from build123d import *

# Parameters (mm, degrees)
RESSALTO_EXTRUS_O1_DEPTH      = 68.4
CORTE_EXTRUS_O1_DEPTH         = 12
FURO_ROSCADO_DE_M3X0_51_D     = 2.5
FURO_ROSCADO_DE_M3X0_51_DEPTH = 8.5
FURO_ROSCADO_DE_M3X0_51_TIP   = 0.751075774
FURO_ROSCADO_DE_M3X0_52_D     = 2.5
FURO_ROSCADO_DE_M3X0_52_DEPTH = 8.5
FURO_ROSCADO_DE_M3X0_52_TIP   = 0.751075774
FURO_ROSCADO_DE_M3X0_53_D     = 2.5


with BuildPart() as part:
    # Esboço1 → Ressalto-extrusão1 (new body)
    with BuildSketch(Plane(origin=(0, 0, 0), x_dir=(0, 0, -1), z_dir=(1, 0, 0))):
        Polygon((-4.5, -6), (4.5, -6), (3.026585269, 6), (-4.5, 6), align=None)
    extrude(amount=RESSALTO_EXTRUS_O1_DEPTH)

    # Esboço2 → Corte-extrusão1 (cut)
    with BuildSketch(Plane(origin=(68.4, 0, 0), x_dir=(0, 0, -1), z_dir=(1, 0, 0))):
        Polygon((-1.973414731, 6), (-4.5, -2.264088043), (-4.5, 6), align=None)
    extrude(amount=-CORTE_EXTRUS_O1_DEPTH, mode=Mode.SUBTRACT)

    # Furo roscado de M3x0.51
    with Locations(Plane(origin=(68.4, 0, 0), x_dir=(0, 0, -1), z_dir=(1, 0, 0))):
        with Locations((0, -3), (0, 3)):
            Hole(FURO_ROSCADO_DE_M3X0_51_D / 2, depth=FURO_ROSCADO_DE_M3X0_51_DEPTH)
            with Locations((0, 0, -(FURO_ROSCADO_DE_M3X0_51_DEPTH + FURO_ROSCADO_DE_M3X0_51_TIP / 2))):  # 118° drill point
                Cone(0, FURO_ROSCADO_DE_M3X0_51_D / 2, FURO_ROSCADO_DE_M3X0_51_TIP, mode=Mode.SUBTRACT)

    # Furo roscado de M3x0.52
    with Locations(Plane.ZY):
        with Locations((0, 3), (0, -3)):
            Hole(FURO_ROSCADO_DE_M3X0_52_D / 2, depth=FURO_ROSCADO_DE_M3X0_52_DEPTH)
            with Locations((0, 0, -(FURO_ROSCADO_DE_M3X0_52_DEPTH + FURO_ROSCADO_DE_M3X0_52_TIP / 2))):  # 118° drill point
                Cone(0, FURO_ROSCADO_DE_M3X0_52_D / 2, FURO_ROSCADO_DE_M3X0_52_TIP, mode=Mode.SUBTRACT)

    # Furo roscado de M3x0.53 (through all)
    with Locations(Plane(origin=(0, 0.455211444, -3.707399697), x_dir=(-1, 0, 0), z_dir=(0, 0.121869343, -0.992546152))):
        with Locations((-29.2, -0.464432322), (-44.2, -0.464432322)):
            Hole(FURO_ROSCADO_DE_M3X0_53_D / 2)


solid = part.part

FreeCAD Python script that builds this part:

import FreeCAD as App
import Part
import Sketcher
from FreeCAD import Vector
Q = App.Units.Quantity

doc = App.newDocument("Part")
body = doc.addObject("PartDesign::Body", "Body")

# Sketch on YZ plane
sketch1 = body.newObject("Sketcher::SketchObject", "Sketch")
sketch1.AttachmentSupport = (doc.getObject("YZ_Plane"), [""])
sketch1.MapMode = "FlatFace"
sketch1.addGeometry(Part.LineSegment(Vector(-6, 4, 0), Vector(-6, -4, 0)), False)
sketch1.addGeometry(Part.LineSegment(Vector(-6, -4, 0), Vector(6, -3, 0)), False)
sketch1.addGeometry(Part.LineSegment(Vector(6, -3, 0), Vector(6, 4, 0)), False)
sketch1.addGeometry(Part.LineSegment(Vector(6, 4, 0), Vector(-6, 4, 0)), False)
sketch1.addConstraint(Sketcher.Constraint("Coincident", 0, 2, 1, 1))
sketch1.addConstraint(Sketcher.Constraint("Coincident", 1, 2, 2, 1))
sketch1.addConstraint(Sketcher.Constraint("Coincident", 2, 2, 3, 1))
sketch1.addConstraint(Sketcher.Constraint("Coincident", 3, 2, 0, 1))
sketch1.addConstraint(Sketcher.Constraint("Vertical", 0))
sketch1.addConstraint(Sketcher.Constraint("Vertical", 2))
sketch1.addConstraint(Sketcher.Constraint("Horizontal", 3))
sketch1.addConstraint(Sketcher.Constraint("Symmetric", 0, 2, 2, 2, -1, 1))
sketch1.addConstraint(Sketcher.Constraint("DistanceX", 3, 2, 3, 1, 12.0))
sketch1.addConstraint(Sketcher.Constraint("DistanceY", 0, 2, 0, 1, 9.0))
sketch1.addConstraint(Sketcher.Constraint("Angle", 1, Q("7 deg")))
pad1 = body.newObject("PartDesign::Pad", "Pad")
pad1.Profile = sketch1
pad1.Length = 68.4

# Sketch on YZ plane
sketch2 = body.newObject("Sketcher::SketchObject", "Sketch001")
sketch2.AttachmentSupport = (doc.getObject("YZ_Plane"), [""])
sketch2.MapMode = "FlatFace"
sketch2.AttachmentOffset = App.Placement(Vector(0, 0, 68.4), App.Rotation())
sketch2.addGeometry(Part.LineSegment(Vector(-2.3, 4.5, 0), Vector(6, 2, 0)), False)
sketch2.addGeometry(Part.LineSegment(Vector(6, 2, 0), Vector(6, 4.5, 0)), False)
sketch2.addGeometry(Part.LineSegment(Vector(6, 4.5, 0), Vector(-2.3, 4.5, 0)), False)
sketch2.addConstraint(Sketcher.Constraint("Coincident", 0, 2, 1, 1))
sketch2.addConstraint(Sketcher.Constraint("Coincident", 1, 2, 2, 1))
sketch2.addConstraint(Sketcher.Constraint("Coincident", 2, 2, 0, 1))
sketch2.addConstraint(Sketcher.Constraint("Vertical", 1))
sketch2.addConstraint(Sketcher.Constraint("Horizontal", 2))
sketch2.addConstraint(Sketcher.Constraint("Angle", 0, Q("-17 deg")))
sketch2.addConstraint(Sketcher.Constraint("DistanceX", -1, 1, 0, 2, 6.0))
sketch2.addConstraint(Sketcher.Constraint("DistanceY", -1, 1, 1, 2, 4.5))
sketch2.addConstraint(Sketcher.Constraint("DistanceX", 2, 2, 2, 1, 8.264088))
pocket1 = body.newObject("PartDesign::Pocket", "Pocket")
pocket1.Profile = sketch2
pocket1.Length = 12

# Sketch on YZ plane
sketch3 = body.newObject("Sketcher::SketchObject", "Sketch002")
sketch3.AttachmentSupport = (doc.getObject("YZ_Plane"), [""])
sketch3.MapMode = "FlatFace"
sketch3.AttachmentOffset = App.Placement(Vector(0, 0, 68.4), App.Rotation())
sketch3.addGeometry(Part.Circle(Vector(-3, 0, 0), Vector(0, 0, 1), 1.2), False)
sketch3.addGeometry(Part.Circle(Vector(3, 0, 0), Vector(0, 0, 1), 1.2), False)
sketch3.addConstraint(Sketcher.Constraint("Equal", 0, 1))
sketch3.addConstraint(Sketcher.Constraint("Symmetric", 0, 3, 1, 3, -1, 1))
sketch3.addConstraint(Sketcher.Constraint("PointOnObject", 0, 3, -1))
sketch3.addConstraint(Sketcher.Constraint("Diameter", 0, 2.5))
sketch3.addConstraint(Sketcher.Constraint("DistanceX", 0, 3, -1, 1, 3.0))
doc.recompute()
hole = body.newObject("PartDesign::Hole", "Hole")
hole.Profile = sketch3
hole.ThreadType = "None"
hole.Diameter = 2.5
hole.DepthType = "Dimension"
hole.Depth = 8.5
hole.DrillPoint = "Angled"
hole.DrillPointAngle = 118

# Sketch on YZ plane
sketch4 = body.newObject("Sketcher::SketchObject", "Sketch003")
sketch4.AttachmentSupport = (doc.getObject("YZ_Plane"), [""])
sketch4.MapMode = "FlatFace"
sketch4.addGeometry(Part.Circle(Vector(3, 0, 0), Vector(0, 0, 1), 1.2), False)
sketch4.addGeometry(Part.Circle(Vector(-3, 0, 0), Vector(0, 0, 1), 1.2), False)
sketch4.addConstraint(Sketcher.Constraint("Equal", 0, 1))
sketch4.addConstraint(Sketcher.Constraint("Symmetric", 0, 3, 1, 3, -1, 1))
sketch4.addConstraint(Sketcher.Constraint("PointOnObject", 0, 3, -1))
sketch4.addConstraint(Sketcher.Constraint("Diameter", 0, 2.5))
sketch4.addConstraint(Sketcher.Constraint("DistanceX", -1, 1, 0, 3, 3.0))
doc.recompute()
hole2 = body.newObject("PartDesign::Hole", "Hole001")
hole2.Profile = sketch4
hole2.ThreadType = "None"
hole2.Diameter = 2.5
hole2.DepthType = "Dimension"
hole2.Depth = 8.5
hole2.DrillPoint = "Angled"
hole2.DrillPointAngle = 118
hole2.Reversed = True

# Sketch on an angled plane
sketch5 = body.newObject("Sketcher::SketchObject", "Sketch004")
sketch5.Placement = App.Placement(Vector(0, 0.455211, -3.7074), App.Rotation(Vector(-1, 0, 0), Vector(0, 0.992546152, 0.121869343), Vector(0, 0.121869343, -0.992546152), "ZXY"))
sketch5.addGeometry(Part.Circle(Vector(-29.2, -0.5, 0), Vector(0, 0, 1), 1.2), False)
sketch5.addGeometry(Part.Circle(Vector(-44.2, -0.5, 0), Vector(0, 0, 1), 1.2), False)
sketch5.addConstraint(Sketcher.Constraint("Equal", 0, 1))
sketch5.addConstraint(Sketcher.Constraint("Horizontal", 0, 3, 1, 3))
sketch5.addConstraint(Sketcher.Constraint("Diameter", 0, 2.5))
sketch5.addConstraint(Sketcher.Constraint("DistanceX", 1, 3, 0, 3, 15.0))
sketch5.addConstraint(Sketcher.Constraint("DistanceX", 0, 3, -1, 1, 29.2))
sketch5.addConstraint(Sketcher.Constraint("DistanceY", 0, 3, -1, 1, 0.464432))
doc.recompute()
hole3 = body.newObject("PartDesign::Hole", "Hole002")
hole3.Profile = sketch5
hole3.ThreadType = "None"
hole3.Diameter = 2.5
hole3.DepthType = "ThroughAll"

doc.recompute()
